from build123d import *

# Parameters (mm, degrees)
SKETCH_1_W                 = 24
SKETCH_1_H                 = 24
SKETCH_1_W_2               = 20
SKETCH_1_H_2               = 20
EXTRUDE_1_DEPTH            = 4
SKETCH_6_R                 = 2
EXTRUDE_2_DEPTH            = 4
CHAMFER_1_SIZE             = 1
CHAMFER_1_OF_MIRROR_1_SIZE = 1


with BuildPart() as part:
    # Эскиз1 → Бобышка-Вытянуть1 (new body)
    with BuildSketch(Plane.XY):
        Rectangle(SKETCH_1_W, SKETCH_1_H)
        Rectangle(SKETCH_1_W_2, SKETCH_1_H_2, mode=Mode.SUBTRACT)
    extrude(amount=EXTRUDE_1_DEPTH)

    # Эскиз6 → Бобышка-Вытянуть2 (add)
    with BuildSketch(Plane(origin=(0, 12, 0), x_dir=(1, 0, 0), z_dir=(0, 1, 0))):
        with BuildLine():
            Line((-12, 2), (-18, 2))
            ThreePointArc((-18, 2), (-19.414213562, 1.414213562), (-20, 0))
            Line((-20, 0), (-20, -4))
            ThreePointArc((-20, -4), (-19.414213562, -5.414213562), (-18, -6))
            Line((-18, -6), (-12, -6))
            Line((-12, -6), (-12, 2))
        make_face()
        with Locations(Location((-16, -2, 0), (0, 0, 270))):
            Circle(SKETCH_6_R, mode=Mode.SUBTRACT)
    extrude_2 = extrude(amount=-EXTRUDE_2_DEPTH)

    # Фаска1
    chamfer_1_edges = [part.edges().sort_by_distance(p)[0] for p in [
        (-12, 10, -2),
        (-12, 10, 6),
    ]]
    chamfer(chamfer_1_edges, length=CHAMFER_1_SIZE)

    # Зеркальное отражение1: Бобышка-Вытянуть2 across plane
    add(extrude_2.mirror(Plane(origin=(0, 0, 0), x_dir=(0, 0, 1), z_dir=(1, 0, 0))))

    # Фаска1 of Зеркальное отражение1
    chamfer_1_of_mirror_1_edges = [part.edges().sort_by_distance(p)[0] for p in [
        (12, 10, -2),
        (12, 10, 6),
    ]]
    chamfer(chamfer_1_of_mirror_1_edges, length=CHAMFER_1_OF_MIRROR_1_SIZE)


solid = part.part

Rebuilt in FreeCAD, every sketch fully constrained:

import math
import FreeCAD as App
import Part
import Sketcher

V = App.Vector


def edges_at(feature, points):
    """Names of the edges that pass closest to the given points."""
    edges = feature.Shape.Edges
    near = lambda p: min(range(len(edges)), key=lambda i: edges[i].distToShape(Part.Vertex(*p))[0])
    return sorted({f"Edge{near(p) + 1}" for p in points})


def add_polygon(sketch, points):
    """Adds a closed chain of lines whose ends are joined by coincident constraints."""
    first, n = sketch.GeometryCount, len(points)
    for a, b in zip(points, points[1:] + points[:1]):
        sketch.addGeometry(Part.LineSegment(App.Vector(*a, 0), App.Vector(*b, 0)), False)
    for i in range(n):
        sketch.addConstraint(Sketcher.Constraint("Coincident", first + i, 2, first + (i + 1) % n, 1))

doc = App.newDocument("Part")
body = doc.addObject("PartDesign::Body", "Body")

# Sketch on XY plane
sketch1 = body.newObject("Sketcher::SketchObject", "Sketch")
sketch1.AttachmentSupport = (doc.getObject("XY_Plane"), [""])
sketch1.MapMode = "FlatFace"
add_polygon(sketch1, [(-12, 12), (-12, -12), (12, -12), (12, 12)])  # lines 0-3
add_polygon(sketch1, [(10, -10), (-10, -10), (-10, 10), (10, 10)])  # lines 4-7
sketch1.addConstraint([
    Sketcher.Constraint("Vertical", 0),
    Sketcher.Constraint("Horizontal", 1),
    Sketcher.Constraint("Vertical", 2),
    Sketcher.Constraint("Horizontal", 3),
    Sketcher.Constraint("Horizontal", 4),
    Sketcher.Constraint("Vertical", 5),
    Sketcher.Constraint("Horizontal", 6),
    Sketcher.Constraint("Vertical", 7),
    Sketcher.Constraint("Symmetric", 0, 2, 2, 2, -1, 1),
    Sketcher.Constraint("Symmetric", 4, 2, 6, 2, -1, 1),
    Sketcher.Constraint("Equal", 3, 0),
    Sketcher.Constraint("Equal", 6, 5),
    Sketcher.Constraint("DistanceX", 1, 1, 1, 2, 24.0),
    Sketcher.Constraint("DistanceX", 4, 2, 4, 1, 20.0),
])
pad1 = body.newObject("PartDesign::Pad", "Pad")
pad1.Profile = sketch1
pad1.Length = 4

# Sketch on XZ plane
sketch2 = body.newObject("Sketcher::SketchObject", "Sketch001")
sketch2.AttachmentSupport = (doc.getObject("XZ_Plane"), [""])
sketch2.MapMode = "FlatFace"
sketch2.AttachmentOffset = App.Placement(V(0, 0, -12), App.Rotation())
sketch2.addGeometry([
    Part.LineSegment(V(-12, -2, 0), V(-18, -2, 0)),  # 0
    Part.ArcOfCircle(Part.Circle(V(-18, 0, 0), V(0, 0, 1), 2), math.radians(-180), math.radians(-90)),  # 1
    Part.LineSegment(V(-20, 0, 0), V(-20, 4, 0)),  # 2
    Part.ArcOfCircle(Part.Circle(V(-18, 4, 0), V(0, 0, 1), 2), math.radians(90), math.radians(180)),  # 3
    Part.LineSegment(V(-18, 6, 0), V(-12, 6, 0)),  # 4
    Part.LineSegment(V(-12, 6, 0), V(-12, -2, 0)),  # 5
    Part.Circle(V(-16, 2, 0), V(0, 0, 1), 2),  # 6
], False)
sketch2.addConstraint([
    Sketcher.Constraint("Tangent", 0, 2, 1, 2),
    Sketcher.Constraint("Tangent", 1, 1, 2, 1),
    Sketcher.Constraint("Tangent", 2, 2, 3, 2),
    Sketcher.Constraint("Tangent", 3, 1, 4, 1),
    Sketcher.Constraint("Coincident", 4, 2, 5, 1),
    Sketcher.Constraint("Coincident", 5, 2, 0, 1),
    Sketcher.Constraint("Horizontal", 0),
    Sketcher.Constraint("Vertical", 2),
    Sketcher.Constraint("Horizontal", 4),
    Sketcher.Constraint("Vertical", 5),
    Sketcher.Constraint("Equal", 1, 3),
    Sketcher.Constraint("Equal", 3, 6),
    Sketcher.Constraint("PointOnObject", 1, 3, -1),
    Sketcher.Constraint("Diameter", 6, 4.0),
    Sketcher.Constraint("DistanceX", 0, 2, 0, 1, 6.0),
    Sketcher.Constraint("DistanceY", 2, 1, 2, 2, 4.0),
    Sketcher.Constraint("DistanceX", 1, 3, -1, 1, 18.0),
    Sketcher.Constraint("DistanceX", 6, 3, -1, 1, 16.0),
    Sketcher.Constraint("DistanceY", -1, 1, 6, 3, 2.0),
])
pad2 = body.newObject("PartDesign::Pad", "Pad001")
pad2.Profile = sketch2
pad2.Length = 4
doc.recompute()

chamfer = body.newObject("PartDesign::Chamfer", "Chamfer")
chamfer.Base = (pad2, edges_at(pad2, [(-12, 10, -2), (-12, 10, 6)]))
chamfer.Size = 1
doc.recompute()

mirrored = body.newObject("PartDesign::Mirrored", "Mirrored")
mirrored.Originals = [pad2]
mirrored.MirrorPlane = (doc.getObject("YZ_Plane"), [""])
body.Tip = mirrored
doc.recompute()

chamfer2 = body.newObject("PartDesign::Chamfer", "Chamfer001")
chamfer2.Base = (mirrored, edges_at(mirrored, [(12, 10, -2), (12, 10, 6)]))
chamfer2.Size = 1

doc.recompute()
